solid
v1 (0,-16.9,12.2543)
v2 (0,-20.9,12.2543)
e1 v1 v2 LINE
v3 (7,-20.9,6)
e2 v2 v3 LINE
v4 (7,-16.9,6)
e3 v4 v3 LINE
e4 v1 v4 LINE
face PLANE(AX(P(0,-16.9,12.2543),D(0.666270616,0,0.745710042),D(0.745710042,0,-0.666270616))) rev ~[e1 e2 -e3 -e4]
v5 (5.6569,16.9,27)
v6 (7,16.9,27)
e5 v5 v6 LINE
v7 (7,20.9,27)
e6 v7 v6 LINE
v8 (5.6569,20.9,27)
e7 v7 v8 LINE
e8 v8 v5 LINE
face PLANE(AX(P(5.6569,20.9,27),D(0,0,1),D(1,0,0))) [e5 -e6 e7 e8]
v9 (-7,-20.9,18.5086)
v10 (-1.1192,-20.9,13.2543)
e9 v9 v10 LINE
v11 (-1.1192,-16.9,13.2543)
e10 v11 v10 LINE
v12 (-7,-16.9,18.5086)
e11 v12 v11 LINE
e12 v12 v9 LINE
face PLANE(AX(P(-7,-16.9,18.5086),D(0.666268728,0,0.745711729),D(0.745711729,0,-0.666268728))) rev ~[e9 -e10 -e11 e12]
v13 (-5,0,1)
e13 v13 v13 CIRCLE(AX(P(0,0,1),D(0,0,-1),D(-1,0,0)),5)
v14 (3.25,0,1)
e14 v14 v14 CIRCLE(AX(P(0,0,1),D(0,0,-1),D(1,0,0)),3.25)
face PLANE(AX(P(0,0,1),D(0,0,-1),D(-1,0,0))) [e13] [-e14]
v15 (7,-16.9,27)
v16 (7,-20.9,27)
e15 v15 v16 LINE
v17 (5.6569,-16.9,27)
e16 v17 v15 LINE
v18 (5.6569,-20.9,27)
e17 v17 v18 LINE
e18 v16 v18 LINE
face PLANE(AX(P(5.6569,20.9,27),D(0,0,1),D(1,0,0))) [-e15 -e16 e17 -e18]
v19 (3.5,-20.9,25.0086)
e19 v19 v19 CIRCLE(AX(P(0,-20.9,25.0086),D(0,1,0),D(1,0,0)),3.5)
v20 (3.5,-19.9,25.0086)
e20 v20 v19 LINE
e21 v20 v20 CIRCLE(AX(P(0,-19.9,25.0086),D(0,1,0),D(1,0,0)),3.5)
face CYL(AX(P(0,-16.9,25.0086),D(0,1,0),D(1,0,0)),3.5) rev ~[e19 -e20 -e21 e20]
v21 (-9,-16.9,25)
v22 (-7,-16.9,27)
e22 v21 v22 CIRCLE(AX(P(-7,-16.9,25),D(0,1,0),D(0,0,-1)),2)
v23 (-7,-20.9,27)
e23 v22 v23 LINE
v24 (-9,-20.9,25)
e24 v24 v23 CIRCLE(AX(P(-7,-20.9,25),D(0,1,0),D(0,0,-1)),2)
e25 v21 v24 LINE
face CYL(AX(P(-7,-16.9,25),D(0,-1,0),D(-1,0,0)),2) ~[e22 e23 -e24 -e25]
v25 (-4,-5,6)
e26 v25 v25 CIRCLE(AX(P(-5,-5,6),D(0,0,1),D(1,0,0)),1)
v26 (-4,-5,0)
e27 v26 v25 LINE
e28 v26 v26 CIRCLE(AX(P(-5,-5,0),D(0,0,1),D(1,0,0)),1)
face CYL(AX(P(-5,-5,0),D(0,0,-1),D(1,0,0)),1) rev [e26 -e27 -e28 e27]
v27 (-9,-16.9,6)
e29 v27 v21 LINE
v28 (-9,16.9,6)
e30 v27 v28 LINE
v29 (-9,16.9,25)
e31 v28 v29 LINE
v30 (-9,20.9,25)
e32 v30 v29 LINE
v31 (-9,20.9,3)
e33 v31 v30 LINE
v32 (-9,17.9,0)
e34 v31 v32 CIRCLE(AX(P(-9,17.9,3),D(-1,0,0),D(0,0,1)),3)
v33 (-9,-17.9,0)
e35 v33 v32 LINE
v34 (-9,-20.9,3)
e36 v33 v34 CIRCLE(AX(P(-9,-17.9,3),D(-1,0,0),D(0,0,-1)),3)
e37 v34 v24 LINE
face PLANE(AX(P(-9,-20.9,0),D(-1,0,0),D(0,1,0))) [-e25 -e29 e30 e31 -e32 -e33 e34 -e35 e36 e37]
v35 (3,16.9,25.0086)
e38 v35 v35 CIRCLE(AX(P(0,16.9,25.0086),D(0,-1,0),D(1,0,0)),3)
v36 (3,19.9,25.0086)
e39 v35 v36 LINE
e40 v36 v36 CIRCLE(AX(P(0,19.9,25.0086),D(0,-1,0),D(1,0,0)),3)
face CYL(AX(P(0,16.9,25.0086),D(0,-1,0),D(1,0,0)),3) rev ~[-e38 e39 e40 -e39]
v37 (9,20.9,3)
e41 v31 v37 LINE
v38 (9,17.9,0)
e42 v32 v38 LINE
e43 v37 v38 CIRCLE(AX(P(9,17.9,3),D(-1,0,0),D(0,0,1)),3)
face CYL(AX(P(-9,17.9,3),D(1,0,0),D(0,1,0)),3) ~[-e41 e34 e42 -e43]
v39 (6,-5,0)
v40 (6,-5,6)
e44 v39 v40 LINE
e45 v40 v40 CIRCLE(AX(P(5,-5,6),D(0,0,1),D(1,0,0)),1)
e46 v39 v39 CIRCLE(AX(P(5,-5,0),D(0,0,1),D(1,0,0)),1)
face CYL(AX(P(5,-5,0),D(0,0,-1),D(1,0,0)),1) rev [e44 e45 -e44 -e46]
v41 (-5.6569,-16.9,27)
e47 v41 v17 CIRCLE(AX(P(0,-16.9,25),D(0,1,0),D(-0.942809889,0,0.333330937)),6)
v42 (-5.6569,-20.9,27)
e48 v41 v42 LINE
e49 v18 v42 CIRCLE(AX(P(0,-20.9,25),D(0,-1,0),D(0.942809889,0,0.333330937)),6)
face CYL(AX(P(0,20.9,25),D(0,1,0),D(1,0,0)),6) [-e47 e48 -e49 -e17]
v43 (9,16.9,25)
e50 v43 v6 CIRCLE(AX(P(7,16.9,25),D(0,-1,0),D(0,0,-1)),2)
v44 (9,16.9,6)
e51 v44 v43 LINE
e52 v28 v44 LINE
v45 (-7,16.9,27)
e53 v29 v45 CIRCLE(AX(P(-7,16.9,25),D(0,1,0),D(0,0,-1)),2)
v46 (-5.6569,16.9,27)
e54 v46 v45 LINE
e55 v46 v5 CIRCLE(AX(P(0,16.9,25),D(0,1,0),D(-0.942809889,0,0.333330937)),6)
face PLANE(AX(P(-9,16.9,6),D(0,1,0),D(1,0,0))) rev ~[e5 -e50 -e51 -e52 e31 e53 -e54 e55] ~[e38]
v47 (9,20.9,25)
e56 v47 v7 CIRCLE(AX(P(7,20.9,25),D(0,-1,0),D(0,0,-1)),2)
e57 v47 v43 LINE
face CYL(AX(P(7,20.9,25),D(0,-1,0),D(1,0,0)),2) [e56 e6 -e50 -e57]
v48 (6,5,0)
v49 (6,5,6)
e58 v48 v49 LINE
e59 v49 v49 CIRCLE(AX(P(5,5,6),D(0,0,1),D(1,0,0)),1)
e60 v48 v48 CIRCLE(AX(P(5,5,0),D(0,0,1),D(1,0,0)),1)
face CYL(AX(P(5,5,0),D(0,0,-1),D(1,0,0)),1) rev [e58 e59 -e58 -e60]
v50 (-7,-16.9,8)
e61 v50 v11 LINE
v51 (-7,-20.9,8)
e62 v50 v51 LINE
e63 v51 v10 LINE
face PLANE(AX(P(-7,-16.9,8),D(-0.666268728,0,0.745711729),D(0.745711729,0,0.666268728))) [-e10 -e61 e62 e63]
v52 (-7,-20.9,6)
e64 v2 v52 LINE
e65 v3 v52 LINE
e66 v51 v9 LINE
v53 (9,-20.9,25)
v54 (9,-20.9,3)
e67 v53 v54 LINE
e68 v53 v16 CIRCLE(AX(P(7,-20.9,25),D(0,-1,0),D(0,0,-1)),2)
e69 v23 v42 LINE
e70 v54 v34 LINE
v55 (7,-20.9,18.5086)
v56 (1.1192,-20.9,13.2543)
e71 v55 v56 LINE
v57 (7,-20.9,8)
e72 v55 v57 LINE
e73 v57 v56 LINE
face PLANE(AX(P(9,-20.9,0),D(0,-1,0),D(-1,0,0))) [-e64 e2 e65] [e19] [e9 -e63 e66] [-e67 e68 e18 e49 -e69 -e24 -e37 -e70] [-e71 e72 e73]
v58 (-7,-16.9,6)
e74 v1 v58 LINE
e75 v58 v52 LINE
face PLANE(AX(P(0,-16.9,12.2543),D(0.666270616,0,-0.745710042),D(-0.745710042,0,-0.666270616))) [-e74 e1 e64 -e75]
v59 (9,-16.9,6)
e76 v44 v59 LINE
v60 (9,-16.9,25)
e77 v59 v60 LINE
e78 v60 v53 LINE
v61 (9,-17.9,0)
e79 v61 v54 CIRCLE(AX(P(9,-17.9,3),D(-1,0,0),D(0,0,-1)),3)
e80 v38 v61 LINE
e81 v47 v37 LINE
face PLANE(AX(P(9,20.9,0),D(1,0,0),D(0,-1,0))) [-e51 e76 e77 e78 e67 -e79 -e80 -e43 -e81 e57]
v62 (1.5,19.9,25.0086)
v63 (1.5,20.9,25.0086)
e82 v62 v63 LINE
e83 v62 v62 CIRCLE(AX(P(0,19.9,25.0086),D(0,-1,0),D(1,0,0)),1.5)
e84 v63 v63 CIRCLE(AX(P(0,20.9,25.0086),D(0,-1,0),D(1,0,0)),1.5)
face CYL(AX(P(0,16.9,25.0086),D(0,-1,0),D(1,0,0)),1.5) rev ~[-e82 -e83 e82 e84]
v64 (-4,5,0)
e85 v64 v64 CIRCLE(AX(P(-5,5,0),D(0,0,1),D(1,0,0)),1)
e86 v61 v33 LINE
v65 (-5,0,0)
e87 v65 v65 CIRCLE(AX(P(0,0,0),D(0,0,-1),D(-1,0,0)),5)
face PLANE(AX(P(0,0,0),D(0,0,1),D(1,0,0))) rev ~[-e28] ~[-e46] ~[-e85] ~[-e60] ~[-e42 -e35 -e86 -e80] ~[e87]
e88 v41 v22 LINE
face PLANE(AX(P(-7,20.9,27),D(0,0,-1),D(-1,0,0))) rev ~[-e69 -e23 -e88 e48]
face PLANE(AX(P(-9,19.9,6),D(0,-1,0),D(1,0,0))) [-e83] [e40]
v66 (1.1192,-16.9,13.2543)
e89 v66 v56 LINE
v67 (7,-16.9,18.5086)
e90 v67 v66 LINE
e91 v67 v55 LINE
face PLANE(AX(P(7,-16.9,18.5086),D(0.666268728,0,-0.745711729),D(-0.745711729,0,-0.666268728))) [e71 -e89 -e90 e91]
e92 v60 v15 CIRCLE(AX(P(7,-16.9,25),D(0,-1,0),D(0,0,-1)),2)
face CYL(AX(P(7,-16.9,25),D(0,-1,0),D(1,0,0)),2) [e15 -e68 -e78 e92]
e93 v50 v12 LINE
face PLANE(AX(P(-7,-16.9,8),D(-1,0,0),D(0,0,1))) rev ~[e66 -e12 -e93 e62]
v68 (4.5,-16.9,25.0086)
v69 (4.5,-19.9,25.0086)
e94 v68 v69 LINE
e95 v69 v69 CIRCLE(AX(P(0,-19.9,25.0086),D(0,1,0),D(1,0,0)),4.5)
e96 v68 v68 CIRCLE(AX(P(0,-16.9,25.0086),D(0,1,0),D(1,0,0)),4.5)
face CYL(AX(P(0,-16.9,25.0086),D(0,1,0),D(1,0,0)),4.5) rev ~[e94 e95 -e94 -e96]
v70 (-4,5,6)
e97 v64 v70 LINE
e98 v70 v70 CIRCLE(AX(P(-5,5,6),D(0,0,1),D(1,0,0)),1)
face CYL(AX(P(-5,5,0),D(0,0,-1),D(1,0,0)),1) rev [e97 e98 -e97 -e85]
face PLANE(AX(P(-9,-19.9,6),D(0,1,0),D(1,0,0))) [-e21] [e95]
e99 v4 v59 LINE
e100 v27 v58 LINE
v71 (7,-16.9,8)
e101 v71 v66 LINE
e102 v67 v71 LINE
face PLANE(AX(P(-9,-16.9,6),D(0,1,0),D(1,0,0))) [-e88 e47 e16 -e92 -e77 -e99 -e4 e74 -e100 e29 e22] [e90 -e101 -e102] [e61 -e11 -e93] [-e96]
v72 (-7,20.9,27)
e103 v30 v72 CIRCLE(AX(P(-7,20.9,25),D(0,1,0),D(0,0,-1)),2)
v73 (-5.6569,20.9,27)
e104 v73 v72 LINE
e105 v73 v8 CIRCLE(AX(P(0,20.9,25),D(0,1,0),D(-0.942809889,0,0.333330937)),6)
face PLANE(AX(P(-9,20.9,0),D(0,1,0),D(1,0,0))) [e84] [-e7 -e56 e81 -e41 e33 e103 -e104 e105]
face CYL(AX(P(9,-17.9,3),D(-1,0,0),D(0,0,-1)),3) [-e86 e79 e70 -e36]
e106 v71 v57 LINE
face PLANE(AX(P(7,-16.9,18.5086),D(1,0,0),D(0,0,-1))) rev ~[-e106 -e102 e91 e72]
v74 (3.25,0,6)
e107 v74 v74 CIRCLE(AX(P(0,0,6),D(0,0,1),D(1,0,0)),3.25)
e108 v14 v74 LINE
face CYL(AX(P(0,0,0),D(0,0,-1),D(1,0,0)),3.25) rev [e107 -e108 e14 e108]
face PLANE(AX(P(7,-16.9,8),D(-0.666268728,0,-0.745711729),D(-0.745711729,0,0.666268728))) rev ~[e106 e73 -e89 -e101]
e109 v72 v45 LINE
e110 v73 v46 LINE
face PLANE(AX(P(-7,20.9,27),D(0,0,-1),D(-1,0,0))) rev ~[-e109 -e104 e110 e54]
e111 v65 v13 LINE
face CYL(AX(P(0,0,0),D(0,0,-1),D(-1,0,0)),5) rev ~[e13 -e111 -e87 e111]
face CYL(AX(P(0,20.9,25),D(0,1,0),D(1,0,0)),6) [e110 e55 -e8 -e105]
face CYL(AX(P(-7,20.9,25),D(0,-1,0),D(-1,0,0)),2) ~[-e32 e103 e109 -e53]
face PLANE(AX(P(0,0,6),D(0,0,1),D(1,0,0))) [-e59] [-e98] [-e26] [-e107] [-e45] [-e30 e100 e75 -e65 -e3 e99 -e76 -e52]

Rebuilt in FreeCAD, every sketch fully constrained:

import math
import FreeCAD as App
import Part
import Sketcher

V = App.Vector
Q = App.Units.Quantity


def edges_at(feature, points):
    """Names of the edges that pass closest to the given points."""
    edges = feature.Shape.Edges
    near = lambda p: min(range(len(edges)), key=lambda i: edges[i].distToShape(Part.Vertex(*p))[0])
    return sorted({f"Edge{near(p) + 1}" for p in points})


def add_polygon(sketch, points):
    """Adds a closed chain of lines whose ends are joined by coincident constraints."""
    first, n = sketch.GeometryCount, len(points)
    for a, b in zip(points, points[1:] + points[:1]):
        sketch.addGeometry(Part.LineSegment(App.Vector(*a, 0), App.Vector(*b, 0)), False)
    for i in range(n):
        sketch.addConstraint(Sketcher.Constraint("Coincident", first + i, 2, first + (i + 1) % n, 1))

doc = App.newDocument("Part")
body = doc.addObject("PartDesign::Body", "Body")

# Sketch on XY plane
sketch1 = doc.addObject("Sketcher::SketchObject", "Sketch")
body.addObject(sketch1)
sketch1.AttachmentSupport = (doc.XY_Plane, [""])
sketch1.MapMode = "FlatFace"
add_polygon(sketch1, [(9, 20.9), (-9, 20.9), (-9, -20.9), (9, -20.9)])  # lines 0-3
sketch1.addGeometry(Part.Circle(V(-5, -5, 0), V(0, 0, 1), 1), False)  # 4
sketch1.addGeometry(Part.Circle(V(0, 0, 0), V(0, 0, 1), 3.2), False)  # 5
sketch1.addGeometry(Part.Circle(V(5, -5, 0), V(0, 0, 1), 1), False)  # 6
sketch1.addGeometry(Part.Circle(V(-5, 5, 0), V(0, 0, 1), 1), False)  # 7
sketch1.addGeometry(Part.Circle(V(5, 5, 0), V(0, 0, 1), 1), False)  # 8
sketch1.addConstraint(Sketcher.Constraint("Horizontal", 0))
sketch1.addConstraint(Sketcher.Constraint("Vertical", 1))
sketch1.addConstraint(Sketcher.Constraint("Horizontal", 2))
sketch1.addConstraint(Sketcher.Constraint("Vertical", 3))
sketch1.addConstraint(Sketcher.Constraint("Coincident", 5, 3, -1, 1))
sketch1.addConstraint(Sketcher.Constraint("Equal", 4, 6))
sketch1.addConstraint(Sketcher.Constraint("Equal", 6, 7))
sketch1.addConstraint(Sketcher.Constraint("Equal", 7, 8))
sketch1.addConstraint(Sketcher.Constraint("Symmetric", 6, 3, 7, 3, -1, 1))
sketch1.addConstraint(Sketcher.Constraint("Symmetric", 4, 3, 8, 3, -1, 1))
sketch1.addConstraint(Sketcher.Constraint("Symmetric", 0, 2, 2, 2, -1, 1))
sketch1.addConstraint(Sketcher.Constraint("Symmetric", 4, 3, 6, 3, -2))
sketch1.addConstraint(Sketcher.Constraint("Diameter", 4, 2.0))
sketch1.addConstraint(Sketcher.Constraint("Diameter", 5, 6.5))
sketch1.addConstraint(Sketcher.Constraint("DistanceX", 0, 2, 0, 1, 18.0))
sketch1.addConstraint(Sketcher.Constraint("DistanceY", 1, 2, 1, 1, 41.8))
sketch1.addConstraint(Sketcher.Constraint("DistanceX", 4, 3, 6, 3, 10.0))
sketch1.addConstraint(Sketcher.Constraint("DistanceY", 4, 3, 7, 3, 10.0))
pad1 = doc.addObject("PartDesign::Pad", "Pad")
body.addObject(pad1)
pad1.Profile = sketch1
pad1.Length = 6

# Sketch on XY plane
sketch2 = doc.addObject("Sketcher::SketchObject", "Sketch001")
body.addObject(sketch2)
sketch2.AttachmentSupport = (doc.XY_Plane, [""])
sketch2.MapMode = "FlatFace"
sketch2.AttachmentOffset = App.Placement(V(0, 0, 6), App.Rotation())
add_polygon(sketch2, [(9, 20.9), (-9, 20.9), (-9, 16.9), (9, 16.9)])  # lines 0-3
add_polygon(sketch2, [(9, -20.9), (9, -16.9), (-9, -16.9), (-9, -20.9)])  # lines 4-7
sketch2.addConstraint(Sketcher.Constraint("Horizontal", 0))
sketch2.addConstraint(Sketcher.Constraint("Vertical", 1))
sketch2.addConstraint(Sketcher.Constraint("Horizontal", 2))
sketch2.addConstraint(Sketcher.Constraint("Vertical", 3))
sketch2.addConstraint(Sketcher.Constraint("Vertical", 4))
sketch2.addConstraint(Sketcher.Constraint("Horizontal", 5))
sketch2.addConstraint(Sketcher.Constraint("Vertical", 6))
sketch2.addConstraint(Sketcher.Constraint("Horizontal", 7))
sketch2.addConstraint(Sketcher.Constraint("Symmetric", 1, 2, 4, 2, -1, 1))
sketch2.addConstraint(Sketcher.Constraint("Symmetric", 3, 2, 6, 2, -1, 1))
sketch2.addConstraint(Sketcher.Constraint("Vertical", 3, 2, 4, 2))
sketch2.addConstraint(Sketcher.Constraint("DistanceY", 1, 2, 1, 1, 4.0))
sketch2.addConstraint(Sketcher.Constraint("DistanceX", 0, 2, 0, 1, 18.0))
sketch2.addConstraint(Sketcher.Constraint("DistanceY", -1, 1, 0, 2, 20.9))
pad2 = doc.addObject("PartDesign::Pad", "Pad001")
body.addObject(pad2)
pad2.Profile = sketch2
pad2.Length = 25

# Sketch on XZ plane
sketch3 = doc.addObject("Sketcher::SketchObject", "Sketch002")
body.addObject(sketch3)
sketch3.AttachmentSupport = (doc.XZ_Plane, [""])
sketch3.MapMode = "FlatFace"
sketch3.AttachmentOffset = App.Placement(V(0, 0, -20.9), App.Rotation())
sketch3.addGeometry(Part.LineSegment(V(0, 31, 0), V(9, 31, 0)), False)
sketch3.addGeometry(Part.LineSegment(V(9, 31, 0), V(9, 27, 0)), False)
sketch3.addGeometry(Part.LineSegment(V(9, 27, 0), V(5.7, 27, 0)), False)
sketch3.addGeometry(Part.ArcOfCircle(Part.Circle(V(0, 25, 0), V(0, 0, 1), 6), math.radians(19), math.radians(90)), False)
sketch3.addGeometry(Part.LineSegment(V(-9, 31, 0), V(0, 31, 0)), False)
sketch3.addGeometry(Part.ArcOfCircle(Part.Circle(V(0, 25, 0), V(0, 0, 1), 6), math.radians(90), math.radians(161)), False)
sketch3.addGeometry(Part.LineSegment(V(-5.7, 27, 0), V(-9, 27, 0)), False)
sketch3.addGeometry(Part.LineSegment(V(-9, 27, 0), V(-9, 31, 0)), False)
sketch3.addConstraint(Sketcher.Constraint("Coincident", 0, 2, 1, 1))
sketch3.addConstraint(Sketcher.Constraint("Coincident", 1, 2, 2, 1))
sketch3.addConstraint(Sketcher.Constraint("Coincident", 2, 2, 3, 1))
sketch3.addConstraint(Sketcher.Constraint("Tangent", 3, 2, 0, 1))
sketch3.addConstraint(Sketcher.Constraint("Tangent", 4, 2, 5, 1))
sketch3.addConstraint(Sketcher.Constraint("Coincident", 5, 2, 6, 1))
sketch3.addConstraint(Sketcher.Constraint("Coincident", 6, 2, 7, 1))
sketch3.addConstraint(Sketcher.Constraint("Coincident", 7, 2, 4, 1))
sketch3.addConstraint(Sketcher.Constraint("Horizontal", 0))
sketch3.addConstraint(Sketcher.Constraint("Vertical", 1))
sketch3.addConstraint(Sketcher.Constraint("Horizontal", 2))
sketch3.addConstraint(Sketcher.Constraint("Horizontal", 4))
sketch3.addConstraint(Sketcher.Constraint("Horizontal", 6))
sketch3.addConstraint(Sketcher.Constraint("Vertical", 7))
sketch3.addConstraint(Sketcher.Constraint("Coincident", 5, 3, 3, 3))
sketch3.addConstraint(Sketcher.Constraint("Equal", 3, 5))
sketch3.addConstraint(Sketcher.Constraint("Symmetric", 2, 2, 5, 2, -2))
sketch3.addConstraint(Sketcher.Constraint("Equal", 0, 4))
sketch3.addConstraint(Sketcher.Constraint("Radius", 3, 6.0))
sketch3.addConstraint(Sketcher.Constraint("DistanceX", 0, 1, 0, 2, 9.0))
sketch3.addConstraint(Sketcher.Constraint("DistanceY", 1, 2, 1, 1, 4.0))
sketch3.addConstraint(Sketcher.Constraint("DistanceY", -1, 1, 3, 3, 25.0))
pocket1 = doc.addObject("PartDesign::Pocket", "Pocket")
body.addObject(pocket1)
pocket1.Profile = sketch3
pocket1.Length = 42
pocket1.Reversed = True

# Sketch on XZ plane
sketch4 = doc.addObject("Sketcher::SketchObject", "Sketch003")
body.addObject(sketch4)
sketch4.AttachmentSupport = (doc.XZ_Plane, [""])
sketch4.MapMode = "FlatFace"
sketch4.AttachmentOffset = App.Placement(V(0, 0, -16.9), App.Rotation())
sketch4.addGeometry(Part.Circle(V(0, 25, 0), V(0, 0, 1), 3), False)
sketch4.addGeometry(Part.Circle(V(0, 25, 0), V(0, 0, 1), 1.5), False)
sketch4.addConstraint(Sketcher.Constraint("Coincident", 1, 3, 0, 3))
sketch4.addConstraint(Sketcher.Constraint("PointOnObject", 0, 3, -2))
sketch4.addConstraint(Sketcher.Constraint("Diameter", 0, 6.0))
sketch4.addConstraint(Sketcher.Constraint("Diameter", 1, 3.0))
sketch4.addConstraint(Sketcher.Constraint("DistanceY", -1, 1, 0, 3, 25.0086))
pocket2 = doc.addObject("PartDesign::Pocket", "Pocket001")
body.addObject(pocket2)
pocket2.Profile = sketch4
pocket2.Length = 3

# Sketch on XZ plane
sketch5 = doc.addObject("Sketcher::SketchObject", "Sketch004")
body.addObject(sketch5)
sketch5.AttachmentSupport = (doc.XZ_Plane, [""])
sketch5.MapMode = "FlatFace"
sketch5.AttachmentOffset = App.Placement(V(0, 0, -16.9), App.Rotation())
sketch5.addGeometry(Part.Circle(V(0, 25, 0), V(0, 0, 1), 1.5), False)
sketch5.addConstraint(Sketcher.Constraint("PointOnObject", 0, 3, -2))
sketch5.addConstraint(Sketcher.Constraint("Diameter", 0, 3.0))
sketch5.addConstraint(Sketcher.Constraint("DistanceY", -1, 1, 0, 3, 25.0086))
pocket3 = doc.addObject("PartDesign::Pocket", "Pocket002")
body.addObject(pocket3)
pocket3.Profile = sketch5
pocket3.Length = 4

# Sketch on XZ plane
sketch6 = doc.addObject("Sketcher::SketchObject", "Sketch005")
body.addObject(sketch6)
sketch6.AttachmentSupport = (doc.XZ_Plane, [""])
sketch6.MapMode = "FlatFace"
sketch6.AttachmentOffset = App.Placement(V(0, 0, 16.9), App.Rotation())
sketch6.addGeometry(Part.Circle(V(0, 25, 0), V(0, 0, 1), 4.5), False)
sketch6.addGeometry(Part.Circle(V(0, 25, 0), V(0, 0, 1), 3.5), False)
sketch6.addConstraint(Sketcher.Constraint("Coincident", 1, 3, 0, 3))
sketch6.addConstraint(Sketcher.Constraint("PointOnObject", 0, 3, -2))
sketch6.addConstraint(Sketcher.Constraint("Diameter", 0, 9.0))
sketch6.addConstraint(Sketcher.Constraint("Diameter", 1, 7.0))
sketch6.addConstraint(Sketcher.Constraint("DistanceY", -1, 1, 0, 3, 25.0086))
pocket4 = doc.addObject("PartDesign::Pocket", "Pocket003")
body.addObject(pocket4)
pocket4.Profile = sketch6
pocket4.Length = 3
pocket4.Reversed = True

# Sketch on XZ plane
sketch7 = doc.addObject("Sketcher::SketchObject", "Sketch006")
body.addObject(sketch7)
sketch7.AttachmentSupport = (doc.XZ_Plane, [""])
sketch7.MapMode = "FlatFace"
sketch7.AttachmentOffset = App.Placement(V(0, 0, 16.9), App.Rotation())
sketch7.addGeometry(Part.Circle(V(0, 25, 0), V(0, 0, 1), 3.5), False)
sketch7.addConstraint(Sketcher.Constraint("PointOnObject", 0, 3, -2))
sketch7.addConstraint(Sketcher.Constraint("Diameter", 0, 7.0))
sketch7.addConstraint(Sketcher.Constraint("DistanceY", -1, 1, 0, 3, 25.0086))
pocket5 = doc.addObject("PartDesign::Pocket", "Pocket004")
body.addObject(pocket5)
pocket5.Profile = sketch7
pocket5.Length = 4
pocket5.Reversed = True

# Sketch on XZ plane
sketch8 = doc.addObject("Sketcher::SketchObject", "Sketch007")
body.addObject(sketch8)
sketch8.AttachmentSupport = (doc.XZ_Plane, [""])
sketch8.MapMode = "FlatFace"
sketch8.AttachmentOffset = App.Placement(V(0, 0, 16.9), App.Rotation())
add_polygon(sketch8, [(0, 12), (7, 6), (-7, 6)])  # lines 0-2
add_polygon(sketch8, [(-1, 13), (-7, 8), (-7, 19)])  # lines 3-5
add_polygon(sketch8, [(1, 13), (7, 19), (7, 8)])  # lines 6-8
sketch8.addConstraint(Sketcher.Constraint("Horizontal", 1))
sketch8.addConstraint(Sketcher.Constraint("Vertical", 4))
sketch8.addConstraint(Sketcher.Constraint("Vertical", 7))
sketch8.addConstraint(Sketcher.Constraint("Symmetric", 4, 2, 6, 2, -2))
sketch8.addConstraint(Sketcher.Constraint("Symmetric", 5, 2, 8, 2, -2))
sketch8.addConstraint(Sketcher.Constraint("PointOnObject", 2, 2, -2))
sketch8.addConstraint(Sketcher.Constraint("Parallel", 2, 3))
sketch8.addConstraint(Sketcher.Constraint("Parallel", 0, 5))
sketch8.addConstraint(Sketcher.Constraint("Parallel", 3, 6))
sketch8.addConstraint(Sketcher.Constraint("Parallel", 5, 8))
sketch8.addConstraint(Sketcher.Constraint("Vertical", 1, 2, 3, 2))
sketch8.addConstraint(Sketcher.Constraint("DistanceX", -1, 1, 0, 2, 7.0))
sketch8.addConstraint(Sketcher.Constraint("DistanceY", 1, 2, 3, 2, 2.0))
sketch8.addConstraint(Sketcher.Constraint("DistanceY", -1, 1, 0, 2, 6.0))
sketch8.addConstraint(Sketcher.Constraint("DistanceY", 2, 2, 5, 2, 1.0))
sketch8.addConstraint(Sketcher.Constraint("Angle", 0, Q("-41.7799 deg")))
pocket6 = doc.addObject("PartDesign::Pocket", "Pocket005")
body.addObject(pocket6)
pocket6.Profile = sketch8
pocket6.Length = 4
pocket6.Reversed = True
doc.recompute()

fillet = doc.addObject("PartDesign::Fillet", "Fillet")
body.addObject(fillet)
fillet.Base = (pocket6, edges_at(pocket6, [
    (-9, 18.9, 27),
    (-9, -18.9, 27),
    (9, -18.9, 27),
    (9, 18.9, 27),
]))
fillet.Radius = 2
doc.recompute()

fillet2 = doc.addObject("PartDesign::Fillet", "Fillet001")
body.addObject(fillet2)
fillet2.Base = (fillet, edges_at(fillet, [(0, -20.9, 0), (0, 20.9, 0)]))
fillet2.Radius = 3

# Sketch on XY plane
sketch9 = doc.addObject("Sketcher::SketchObject", "Sketch008")
body.addObject(sketch9)
sketch9.AttachmentSupport = (doc.XY_Plane, [""])
sketch9.MapMode = "FlatFace"
sketch9.addGeometry(Part.Circle(V(0, 0, 0), V(0, 0, 1), 5), False)
sketch9.addConstraint(Sketcher.Constraint("Coincident", 0, 3, -1, 1))
sketch9.addConstraint(Sketcher.Constraint("Diameter", 0, 10.0))
pocket7 = doc.addObject("PartDesign::Pocket", "Pocket006")
body.addObject(pocket7)
pocket7.Profile = sketch9
pocket7.Length = 1
pocket7.Reversed = True

doc.recompute()
